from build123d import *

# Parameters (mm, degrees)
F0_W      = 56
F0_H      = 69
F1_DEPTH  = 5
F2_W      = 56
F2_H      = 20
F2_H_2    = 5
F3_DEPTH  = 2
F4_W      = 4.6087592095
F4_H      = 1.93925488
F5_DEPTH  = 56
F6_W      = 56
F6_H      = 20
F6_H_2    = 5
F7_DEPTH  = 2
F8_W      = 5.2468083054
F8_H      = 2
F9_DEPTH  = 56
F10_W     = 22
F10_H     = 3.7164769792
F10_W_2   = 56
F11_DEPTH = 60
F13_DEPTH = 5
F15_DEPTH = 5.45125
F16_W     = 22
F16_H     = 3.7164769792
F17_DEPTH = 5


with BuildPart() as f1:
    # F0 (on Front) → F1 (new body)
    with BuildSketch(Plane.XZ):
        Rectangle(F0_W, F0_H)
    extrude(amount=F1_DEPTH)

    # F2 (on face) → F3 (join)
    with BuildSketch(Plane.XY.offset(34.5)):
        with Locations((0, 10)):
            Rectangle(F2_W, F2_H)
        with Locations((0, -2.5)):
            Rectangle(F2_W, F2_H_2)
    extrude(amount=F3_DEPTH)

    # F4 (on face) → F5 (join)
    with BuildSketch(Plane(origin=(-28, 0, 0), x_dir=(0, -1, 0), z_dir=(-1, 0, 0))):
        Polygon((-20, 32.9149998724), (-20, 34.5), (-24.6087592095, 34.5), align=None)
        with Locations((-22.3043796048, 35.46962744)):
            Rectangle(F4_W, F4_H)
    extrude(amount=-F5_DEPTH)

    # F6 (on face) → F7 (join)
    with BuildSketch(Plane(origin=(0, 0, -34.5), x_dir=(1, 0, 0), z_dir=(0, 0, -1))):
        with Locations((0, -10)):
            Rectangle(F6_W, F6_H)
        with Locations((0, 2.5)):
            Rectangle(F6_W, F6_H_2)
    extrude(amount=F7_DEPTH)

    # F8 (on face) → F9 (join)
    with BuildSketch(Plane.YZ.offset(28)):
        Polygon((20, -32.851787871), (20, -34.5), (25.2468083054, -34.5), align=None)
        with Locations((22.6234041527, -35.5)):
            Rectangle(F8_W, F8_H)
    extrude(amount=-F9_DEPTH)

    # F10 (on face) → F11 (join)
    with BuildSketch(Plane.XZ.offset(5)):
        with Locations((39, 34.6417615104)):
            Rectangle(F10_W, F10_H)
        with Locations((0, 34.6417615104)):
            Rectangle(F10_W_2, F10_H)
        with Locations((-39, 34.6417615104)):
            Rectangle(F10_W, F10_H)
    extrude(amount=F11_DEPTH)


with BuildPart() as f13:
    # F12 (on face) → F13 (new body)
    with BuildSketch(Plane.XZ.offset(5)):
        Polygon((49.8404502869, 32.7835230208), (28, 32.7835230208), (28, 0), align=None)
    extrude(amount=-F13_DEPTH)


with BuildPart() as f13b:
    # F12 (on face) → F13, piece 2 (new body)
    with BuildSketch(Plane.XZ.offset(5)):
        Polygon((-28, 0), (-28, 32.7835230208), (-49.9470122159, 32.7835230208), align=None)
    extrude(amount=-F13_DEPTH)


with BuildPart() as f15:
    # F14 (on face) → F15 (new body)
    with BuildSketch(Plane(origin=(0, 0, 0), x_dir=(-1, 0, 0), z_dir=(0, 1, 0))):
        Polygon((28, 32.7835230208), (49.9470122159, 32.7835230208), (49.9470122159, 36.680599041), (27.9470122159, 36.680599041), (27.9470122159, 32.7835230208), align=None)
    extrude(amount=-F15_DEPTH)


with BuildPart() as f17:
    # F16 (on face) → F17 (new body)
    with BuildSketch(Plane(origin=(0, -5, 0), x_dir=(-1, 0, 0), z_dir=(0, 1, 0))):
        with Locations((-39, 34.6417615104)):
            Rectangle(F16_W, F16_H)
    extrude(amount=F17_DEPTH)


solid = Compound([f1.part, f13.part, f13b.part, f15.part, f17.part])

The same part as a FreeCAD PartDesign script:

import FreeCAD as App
import Part
import Sketcher
from FreeCAD import Vector


def add_polygon(sketch, points):
    """Adds a closed chain of lines whose ends are joined by coincident constraints."""
    first, n = sketch.GeometryCount, len(points)
    for a, b in zip(points, points[1:] + points[:1]):
        sketch.addGeometry(Part.LineSegment(App.Vector(*a, 0), App.Vector(*b, 0)), False)
    for i in range(n):
        sketch.addConstraint(Sketcher.Constraint("Coincident", first + i, 2, first + (i + 1) % n, 1))

doc = App.newDocument("Part")
body = doc.addObject("PartDesign::Body", "Body")

# Sketch on XZ plane
sketch1 = body.newObject("Sketcher::SketchObject", "Sketch")
sketch1.AttachmentSupport = (doc.getObject("XZ_Plane"), [""])
sketch1.MapMode = "FlatFace"
add_polygon(sketch1, [(-28, 34), (-28, -34), (28, -34), (28, 34)])  # lines 0-3
sketch1.addConstraint(Sketcher.Constraint("Vertical", 0))
sketch1.addConstraint(Sketcher.Constraint("Horizontal", 1))
sketch1.addConstraint(Sketcher.Constraint("Vertical", 2))
sketch1.addConstraint(Sketcher.Constraint("Horizontal", 3))
sketch1.addConstraint(Sketcher.Constraint("Symmetric", 0, 2, 2, 2, -1, 1))
sketch1.addConstraint(Sketcher.Constraint("DistanceX", 1, 1, 1, 2, 56.0))
sketch1.addConstraint(Sketcher.Constraint("DistanceY", 0, 2, 0, 1, 69.0))
pad1 = body.newObject("PartDesign::Pad", "Pad")
pad1.Profile = sketch1
pad1.Length = 5

# Sketch on XY plane
sketch2 = body.newObject("Sketcher::SketchObject", "Sketch001")
sketch2.AttachmentSupport = (doc.getObject("XY_Plane"), [""])
sketch2.MapMode = "FlatFace"
sketch2.AttachmentOffset = App.Placement(Vector(0, 0, 34.5), App.Rotation())
add_polygon(sketch2, [(-28, 20), (-28, -5), (28, -5), (28, 20)])  # lines 0-3
sketch2.addConstraint(Sketcher.Constraint("Vertical", 0))
sketch2.addConstraint(Sketcher.Constraint("Horizontal", 1))
sketch2.addConstraint(Sketcher.Constraint("Vertical", 2))
sketch2.addConstraint(Sketcher.Constraint("Horizontal", 3))
sketch2.addConstraint(Sketcher.Constraint("DistanceX", 1, 1, 1, 2, 56.0))
sketch2.addConstraint(Sketcher.Constraint("DistanceY", 0, 2, 0, 1, 25.0))
sketch2.addConstraint(Sketcher.Constraint("DistanceX", 0, 2, -1, 1, 28.0))
sketch2.addConstraint(Sketcher.Constraint("DistanceY", 0, 2, -1, 1, 5.0))
pad2 = body.newObject("PartDesign::Pad", "Pad001")
pad2.Profile = sketch2
pad2.Length = 2

# Sketch on YZ plane
sketch3 = body.newObject("Sketcher::SketchObject", "Sketch002")
sketch3.AttachmentSupport = (doc.getObject("YZ_Plane"), [""])
sketch3.MapMode = "FlatFace"
sketch3.AttachmentOffset = App.Placement(Vector(0, 0, -28), App.Rotation())
add_polygon(sketch3, [(20, 32.9), (20, 36.4), (24.6, 36.4), (24.6, 34.5)])  # lines 0-3
sketch3.addConstraint(Sketcher.Constraint("Vertical", 0))
sketch3.addConstraint(Sketcher.Constraint("Horizontal", 1))
sketch3.addConstraint(Sketcher.Constraint("Vertical", 2))
sketch3.addConstraint(Sketcher.Constraint("DistanceX", -1, 1, 0, 2, 20.0))
sketch3.addConstraint(Sketcher.Constraint("DistanceY", -1, 1, 2, 2, 34.5))
sketch3.addConstraint(Sketcher.Constraint("DistanceY", -1, 1, 3, 2, 32.915))
sketch3.addConstraint(Sketcher.Constraint("DistanceX", 1, 1, 1, 2, 4.608759))
sketch3.addConstraint(Sketcher.Constraint("DistanceY", 0, 1, 0, 2, 3.524255))
pad3 = body.newObject("PartDesign::Pad", "Pad002")
pad3.Profile = sketch3
pad3.Length = 56

# Sketch on XY plane
sketch4 = body.newObject("Sketcher::SketchObject", "Sketch003")
sketch4.AttachmentSupport = (doc.getObject("XY_Plane"), [""])
sketch4.MapMode = "FlatFace"
sketch4.AttachmentOffset = App.Placement(Vector(0, 0, -34.5), App.Rotation())
add_polygon(sketch4, [(-28, 20), (28, 20), (28, -5), (-28, -5)])  # lines 0-3
sketch4.addConstraint(Sketcher.Constraint("Horizontal", 0))
sketch4.addConstraint(Sketcher.Constraint("Vertical", 1))
sketch4.addConstraint(Sketcher.Constraint("Horizontal", 2))
sketch4.addConstraint(Sketcher.Constraint("Vertical", 3))
sketch4.addConstraint(Sketcher.Constraint("DistanceX", 0, 1, 0, 2, 56.0))
sketch4.addConstraint(Sketcher.Constraint("DistanceY", 1, 2, 1, 1, 25.0))
sketch4.addConstraint(Sketcher.Constraint("DistanceX", -1, 1, 0, 2, 28.0))
sketch4.addConstraint(Sketcher.Constraint("DistanceY", -1, 1, 0, 2, 20.0))
pad4 = body.newObject("PartDesign::Pad", "Pad003")
pad4.Profile = sketch4
pad4.Length = 2
pad4.Reversed = True

# Sketch on YZ plane
sketch5 = body.newObject("Sketcher::SketchObject", "Sketch004")
sketch5.AttachmentSupport = (doc.getObject("YZ_Plane"), [""])
sketch5.MapMode = "FlatFace"
sketch5.AttachmentOffset = App.Placement(Vector(0, 0, 28), App.Rotation())
add_polygon(sketch5, [(20, -32.9), (20, -36.5), (25.2, -36.5), (25.2, -34.5)])  # lines 0-3
sketch5.addConstraint(Sketcher.Constraint("Vertical", 0))
sketch5.addConstraint(Sketcher.Constraint("Horizontal", 1))
sketch5.addConstraint(Sketcher.Constraint("Vertical", 2))
sketch5.addConstraint(Sketcher.Constraint("DistanceY", 2, 1, 2, 2, 2.0))
sketch5.addConstraint(Sketcher.Constraint("DistanceX", -1, 1, 0, 2, 20.0))
sketch5.addConstraint(Sketcher.Constraint("DistanceY", 0, 2, -1, 1, 36.5))
sketch5.addConstraint(Sketcher.Constraint("Distance", 3, 5.4996))
sketch5.addConstraint(Sketcher.Constraint("DistanceX", 1, 1, 1, 2, 5.246808))
pad5 = body.newObject("PartDesign::Pad", "Pad004")
pad5.Profile = sketch5
pad5.Length = 56
pad5.Reversed = True

# Sketch on XZ plane
sketch6 = body.newObject("Sketcher::SketchObject", "Sketch005")
sketch6.AttachmentSupport = (doc.getObject("XZ_Plane"), [""])
sketch6.MapMode = "FlatFace"
sketch6.AttachmentOffset = App.Placement(Vector(0, 0, 5), App.Rotation())
add_polygon(sketch6, [(50, 32.8), (50, 36.5), (-50, 36.5), (-50, 32.8)])  # lines 0-3
sketch6.addConstraint(Sketcher.Constraint("Vertical", 0))
sketch6.addConstraint(Sketcher.Constraint("Horizontal", 1))
sketch6.addConstraint(Sketcher.Constraint("Vertical", 2))
sketch6.addConstraint(Sketcher.Constraint("Horizontal", 3))
sketch6.addConstraint(Sketcher.Constraint("DistanceX", 1, 2, 1, 1, 100.0))
sketch6.addConstraint(Sketcher.Constraint("DistanceX", -1, 1, 0, 2, 50.0))
sketch6.addConstraint(Sketcher.Constraint("DistanceY", -1, 1, 0, 2, 36.5))
sketch6.addConstraint(Sketcher.Constraint("DistanceY", 0, 1, 0, 2, 3.716477))
pad6 = body.newObject("PartDesign::Pad", "Pad005")
pad6.Profile = sketch6
pad6.Length = 60
body2 = doc.addObject("PartDesign::Body", "Body001")

# Sketch on XZ plane
sketch7 = body2.newObject("Sketcher::SketchObject", "Sketch006")
sketch7.AttachmentSupport = (doc.getObject("XZ_Plane001"), [""])
sketch7.MapMode = "FlatFace"
sketch7.AttachmentOffset = App.Placement(Vector(0, 0, 5), App.Rotation())
add_polygon(sketch7, [(50, 33), (28, 33), (28, 0)])  # lines 0-2
sketch7.addConstraint(Sketcher.Constraint("Horizontal", 0))
sketch7.addConstraint(Sketcher.Constraint("Vertical", 1))
sketch7.addConstraint(Sketcher.Constraint("PointOnObject", 1, 2, -1))
sketch7.addConstraint(Sketcher.Constraint("DistanceX", -1, 1, 0, 2, 28.0))
sketch7.addConstraint(Sketcher.Constraint("DistanceX", 0, 2, 0, 1, 21.84045))
sketch7.addConstraint(Sketcher.Constraint("DistanceY", 1, 2, 1, 1, 32.783523))
pad7 = body2.newObject("PartDesign::Pad", "Pad006")
pad7.Profile = sketch7
pad7.Length = 5
pad7.Reversed = True
body3 = doc.addObject("PartDesign::Body", "Body002")

# Sketch on XZ plane
sketch8 = body3.newObject("Sketcher::SketchObject", "Sketch007")
sketch8.AttachmentSupport = (doc.getObject("XZ_Plane002"), [""])
sketch8.MapMode = "FlatFace"
sketch8.AttachmentOffset = App.Placement(Vector(0, 0, 5), App.Rotation())
add_polygon(sketch8, [(-28, 0), (-28, 33), (-50, 33)])  # lines 0-2
sketch8.addConstraint(Sketcher.Constraint("Vertical", 0))
sketch8.addConstraint(Sketcher.Constraint("Horizontal", 1))
sketch8.addConstraint(Sketcher.Constraint("PointOnObject", 2, 2, -1))
sketch8.addConstraint(Sketcher.Constraint("DistanceX", 0, 2, -1, 1, 28.0))
sketch8.addConstraint(Sketcher.Constraint("DistanceX", 1, 2, 1, 1, 21.947012))
sketch8.addConstraint(Sketcher.Constraint("DistanceY", 0, 1, 0, 2, 32.783523))
pad8 = body3.newObject("PartDesign::Pad", "Pad007")
pad8.Profile = sketch8
pad8.Length = 5
pad8.Reversed = True
body4 = doc.addObject("PartDesign::Body", "Body003")

# Sketch on XZ plane
sketch9 = body4.newObject("Sketcher::SketchObject", "Sketch008")
sketch9.AttachmentSupport = (doc.getObject("XZ_Plane003"), [""])
sketch9.MapMode = "FlatFace"
add_polygon(sketch9, [(-49.9, 32.8), (-49.9, 36.7), (-27.9, 36.7), (-27.9, 32.8)])  # lines 0-3
sketch9.addConstraint(Sketcher.Constraint("Vertical", 0))
sketch9.addConstraint(Sketcher.Constraint("Horizontal", 1))
sketch9.addConstraint(Sketcher.Constraint("Vertical", 2))
sketch9.addConstraint(Sketcher.Constraint("Horizontal", 3))
sketch9.addConstraint(Sketcher.Constraint("DistanceX", 1, 1, 1, 2, 22.0))
sketch9.addConstraint(Sketcher.Constraint("DistanceY", -1, 1, 0, 2, 36.680599))
sketch9.addConstraint(Sketcher.Constraint("DistanceY", 0, 1, 0, 2, 3.897076))
sketch9.addConstraint(Sketcher.Constraint("DistanceX", 0, 2, -1, 1, 49.947012))
pad9 = body4.newObject("PartDesign::Pad", "Pad008")
pad9.Profile = sketch9
pad9.Length = 5.45125
body5 = doc.addObject("PartDesign::Body", "Body004")

# Sketch on XZ plane
sketch10 = body5.newObject("Sketcher::SketchObject", "Sketch009")
sketch10.AttachmentSupport = (doc.getObject("XZ_Plane004"), [""])
sketch10.MapMode = "FlatFace"
sketch10.AttachmentOffset = App.Placement(Vector(0, 0, 5), App.Rotation())
add_polygon(sketch10, [(50, 36.5), (50, 32.8), (28, 32.8), (28, 36.5)])  # lines 0-3
sketch10.addConstraint(Sketcher.Constraint("Vertical", 0))
sketch10.addConstraint(Sketcher.Constraint("Horizontal", 1))
sketch10.addConstraint(Sketcher.Constraint("Vertical", 2))
sketch10.addConstraint(Sketcher.Constraint("Horizontal", 3))
sketch10.addConstraint(Sketcher.Constraint("DistanceX", 1, 2, 1, 1, 22.0))
sketch10.addConstraint(Sketcher.Constraint("DistanceX", -1, 1, 0, 2, 50.0))
sketch10.addConstraint(Sketcher.Constraint("DistanceY", -1, 1, 2, 2, 36.5))
sketch10.addConstraint(Sketcher.Constraint("DistanceY", 0, 2, 0, 1, 3.716477))
pad10 = body5.newObject("PartDesign::Pad", "Pad009")
pad10.Profile = sketch10
pad10.Length = 5
pad10.Reversed = True

doc.recompute()
